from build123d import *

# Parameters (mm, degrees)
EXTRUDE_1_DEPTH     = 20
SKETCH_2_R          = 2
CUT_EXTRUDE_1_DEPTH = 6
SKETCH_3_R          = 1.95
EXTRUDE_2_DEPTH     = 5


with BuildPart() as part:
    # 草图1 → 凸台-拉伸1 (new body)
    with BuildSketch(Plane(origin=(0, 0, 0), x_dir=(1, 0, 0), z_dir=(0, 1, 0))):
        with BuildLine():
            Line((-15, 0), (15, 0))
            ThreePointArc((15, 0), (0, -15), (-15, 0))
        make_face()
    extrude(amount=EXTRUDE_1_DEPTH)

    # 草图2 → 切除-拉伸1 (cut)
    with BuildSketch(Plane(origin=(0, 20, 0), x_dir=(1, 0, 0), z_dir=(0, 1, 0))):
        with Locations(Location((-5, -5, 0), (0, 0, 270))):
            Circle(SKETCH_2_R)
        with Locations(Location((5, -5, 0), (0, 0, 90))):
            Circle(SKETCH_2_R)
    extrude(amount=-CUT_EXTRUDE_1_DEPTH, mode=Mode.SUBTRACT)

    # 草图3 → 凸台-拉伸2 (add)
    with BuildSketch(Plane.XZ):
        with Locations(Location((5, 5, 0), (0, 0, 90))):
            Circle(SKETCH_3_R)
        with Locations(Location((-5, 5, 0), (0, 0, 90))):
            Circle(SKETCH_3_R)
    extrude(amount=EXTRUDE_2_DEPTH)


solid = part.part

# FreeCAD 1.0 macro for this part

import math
import FreeCAD as App
import Part
import Sketcher

doc = App.newDocument("Part")
body = doc.addObject("PartDesign::Body", "Body")

sketch1 = body.newObject("Sketcher::SketchObject", "Sketch")
sketch1.AttachmentSupport = (doc.getObject("XZ_Plane"), [""])
sketch1.MapMode = "FlatFace"
sketch1.addGeometry([
    Part.LineSegment(App.Vector(15, 0, 0), App.Vector(-15, 0, 0)),
    Part.ArcOfCircle(Part.Circle(App.Vector(0, 0, 0), App.Vector(0, 0, 1), 15), math.radians(0), math.radians(180)),
], False)
sketch1.addConstraint([
    Sketcher.Constraint("Coincident", 0, 1, 1, 1),
    Sketcher.Constraint("Coincident", 1, 2, 0, 2),
    Sketcher.Constraint("Horizontal", 0),
    Sketcher.Constraint("Coincident", 1, 3, -1, 1),
    Sketcher.Constraint("PointOnObject", 0, 1, -1),
    Sketcher.Constraint("Radius", 1, 15.0),
])
pad1 = body.newObject("PartDesign::Pad", "Pad")
pad1.Profile = sketch1
pad1.Length = 20
pad1.Reversed = True

sketch2 = body.newObject("Sketcher::SketchObject", "Sketch001")
sketch2.AttachmentSupport = (doc.getObject("XZ_Plane"), [""])
sketch2.MapMode = "FlatFace"
sketch2.AttachmentOffset = App.Placement(App.Vector(0, 0, -20), App.Rotation())
sketch2.addGeometry([
    Part.Circle(App.Vector(-5, 5, 0), App.Vector(0, 0, 1), 2),
    Part.Circle(App.Vector(5, 5, 0), App.Vector(0, 0, 1), 2),
], False)
sketch2.addConstraint([
    Sketcher.Constraint("Equal", 0, 1),
    Sketcher.Constraint("Symmetric", 0, 3, 1, 3, -2),
    Sketcher.Constraint("Diameter", 0, 4.0),
    Sketcher.Constraint("DistanceX", 0, 3, -1, 1, 5.0),
    Sketcher.Constraint("DistanceY", -1, 1, 0, 3, 5.0),
])
pocket1 = body.newObject("PartDesign::Pocket", "Pocket")
pocket1.Profile = sketch2
pocket1.Length = 6
pocket1.Reversed = True

sketch3 = body.newObject("Sketcher::SketchObject", "Sketch002")
sketch3.AttachmentSupport = (doc.getObject("XZ_Plane"), [""])
sketch3.MapMode = "FlatFace"
sketch3.addGeometry([
    Part.Circle(App.Vector(5, 5, 0), App.Vector(0, 0, 1), 1.9),
    Part.Circle(App.Vector(-5, 5, 0), App.Vector(0, 0, 1), 1.9),
], False)
sketch3.addConstraint([
    Sketcher.Constraint("Equal", 0, 1),
    Sketcher.Constraint("Symmetric", 0, 3, 1, 3, -2),
    Sketcher.Constraint("Diameter", 0, 3.9),
    Sketcher.Constraint("DistanceX", -1, 1, 0, 3, 5.0),
    Sketcher.Constraint("DistanceY", -1, 1, 0, 3, 5.0),
])
pad2 = body.newObject("PartDesign::Pad", "Pad001")
pad2.Profile = sketch3
pad2.Length = 5

doc.recompute()
